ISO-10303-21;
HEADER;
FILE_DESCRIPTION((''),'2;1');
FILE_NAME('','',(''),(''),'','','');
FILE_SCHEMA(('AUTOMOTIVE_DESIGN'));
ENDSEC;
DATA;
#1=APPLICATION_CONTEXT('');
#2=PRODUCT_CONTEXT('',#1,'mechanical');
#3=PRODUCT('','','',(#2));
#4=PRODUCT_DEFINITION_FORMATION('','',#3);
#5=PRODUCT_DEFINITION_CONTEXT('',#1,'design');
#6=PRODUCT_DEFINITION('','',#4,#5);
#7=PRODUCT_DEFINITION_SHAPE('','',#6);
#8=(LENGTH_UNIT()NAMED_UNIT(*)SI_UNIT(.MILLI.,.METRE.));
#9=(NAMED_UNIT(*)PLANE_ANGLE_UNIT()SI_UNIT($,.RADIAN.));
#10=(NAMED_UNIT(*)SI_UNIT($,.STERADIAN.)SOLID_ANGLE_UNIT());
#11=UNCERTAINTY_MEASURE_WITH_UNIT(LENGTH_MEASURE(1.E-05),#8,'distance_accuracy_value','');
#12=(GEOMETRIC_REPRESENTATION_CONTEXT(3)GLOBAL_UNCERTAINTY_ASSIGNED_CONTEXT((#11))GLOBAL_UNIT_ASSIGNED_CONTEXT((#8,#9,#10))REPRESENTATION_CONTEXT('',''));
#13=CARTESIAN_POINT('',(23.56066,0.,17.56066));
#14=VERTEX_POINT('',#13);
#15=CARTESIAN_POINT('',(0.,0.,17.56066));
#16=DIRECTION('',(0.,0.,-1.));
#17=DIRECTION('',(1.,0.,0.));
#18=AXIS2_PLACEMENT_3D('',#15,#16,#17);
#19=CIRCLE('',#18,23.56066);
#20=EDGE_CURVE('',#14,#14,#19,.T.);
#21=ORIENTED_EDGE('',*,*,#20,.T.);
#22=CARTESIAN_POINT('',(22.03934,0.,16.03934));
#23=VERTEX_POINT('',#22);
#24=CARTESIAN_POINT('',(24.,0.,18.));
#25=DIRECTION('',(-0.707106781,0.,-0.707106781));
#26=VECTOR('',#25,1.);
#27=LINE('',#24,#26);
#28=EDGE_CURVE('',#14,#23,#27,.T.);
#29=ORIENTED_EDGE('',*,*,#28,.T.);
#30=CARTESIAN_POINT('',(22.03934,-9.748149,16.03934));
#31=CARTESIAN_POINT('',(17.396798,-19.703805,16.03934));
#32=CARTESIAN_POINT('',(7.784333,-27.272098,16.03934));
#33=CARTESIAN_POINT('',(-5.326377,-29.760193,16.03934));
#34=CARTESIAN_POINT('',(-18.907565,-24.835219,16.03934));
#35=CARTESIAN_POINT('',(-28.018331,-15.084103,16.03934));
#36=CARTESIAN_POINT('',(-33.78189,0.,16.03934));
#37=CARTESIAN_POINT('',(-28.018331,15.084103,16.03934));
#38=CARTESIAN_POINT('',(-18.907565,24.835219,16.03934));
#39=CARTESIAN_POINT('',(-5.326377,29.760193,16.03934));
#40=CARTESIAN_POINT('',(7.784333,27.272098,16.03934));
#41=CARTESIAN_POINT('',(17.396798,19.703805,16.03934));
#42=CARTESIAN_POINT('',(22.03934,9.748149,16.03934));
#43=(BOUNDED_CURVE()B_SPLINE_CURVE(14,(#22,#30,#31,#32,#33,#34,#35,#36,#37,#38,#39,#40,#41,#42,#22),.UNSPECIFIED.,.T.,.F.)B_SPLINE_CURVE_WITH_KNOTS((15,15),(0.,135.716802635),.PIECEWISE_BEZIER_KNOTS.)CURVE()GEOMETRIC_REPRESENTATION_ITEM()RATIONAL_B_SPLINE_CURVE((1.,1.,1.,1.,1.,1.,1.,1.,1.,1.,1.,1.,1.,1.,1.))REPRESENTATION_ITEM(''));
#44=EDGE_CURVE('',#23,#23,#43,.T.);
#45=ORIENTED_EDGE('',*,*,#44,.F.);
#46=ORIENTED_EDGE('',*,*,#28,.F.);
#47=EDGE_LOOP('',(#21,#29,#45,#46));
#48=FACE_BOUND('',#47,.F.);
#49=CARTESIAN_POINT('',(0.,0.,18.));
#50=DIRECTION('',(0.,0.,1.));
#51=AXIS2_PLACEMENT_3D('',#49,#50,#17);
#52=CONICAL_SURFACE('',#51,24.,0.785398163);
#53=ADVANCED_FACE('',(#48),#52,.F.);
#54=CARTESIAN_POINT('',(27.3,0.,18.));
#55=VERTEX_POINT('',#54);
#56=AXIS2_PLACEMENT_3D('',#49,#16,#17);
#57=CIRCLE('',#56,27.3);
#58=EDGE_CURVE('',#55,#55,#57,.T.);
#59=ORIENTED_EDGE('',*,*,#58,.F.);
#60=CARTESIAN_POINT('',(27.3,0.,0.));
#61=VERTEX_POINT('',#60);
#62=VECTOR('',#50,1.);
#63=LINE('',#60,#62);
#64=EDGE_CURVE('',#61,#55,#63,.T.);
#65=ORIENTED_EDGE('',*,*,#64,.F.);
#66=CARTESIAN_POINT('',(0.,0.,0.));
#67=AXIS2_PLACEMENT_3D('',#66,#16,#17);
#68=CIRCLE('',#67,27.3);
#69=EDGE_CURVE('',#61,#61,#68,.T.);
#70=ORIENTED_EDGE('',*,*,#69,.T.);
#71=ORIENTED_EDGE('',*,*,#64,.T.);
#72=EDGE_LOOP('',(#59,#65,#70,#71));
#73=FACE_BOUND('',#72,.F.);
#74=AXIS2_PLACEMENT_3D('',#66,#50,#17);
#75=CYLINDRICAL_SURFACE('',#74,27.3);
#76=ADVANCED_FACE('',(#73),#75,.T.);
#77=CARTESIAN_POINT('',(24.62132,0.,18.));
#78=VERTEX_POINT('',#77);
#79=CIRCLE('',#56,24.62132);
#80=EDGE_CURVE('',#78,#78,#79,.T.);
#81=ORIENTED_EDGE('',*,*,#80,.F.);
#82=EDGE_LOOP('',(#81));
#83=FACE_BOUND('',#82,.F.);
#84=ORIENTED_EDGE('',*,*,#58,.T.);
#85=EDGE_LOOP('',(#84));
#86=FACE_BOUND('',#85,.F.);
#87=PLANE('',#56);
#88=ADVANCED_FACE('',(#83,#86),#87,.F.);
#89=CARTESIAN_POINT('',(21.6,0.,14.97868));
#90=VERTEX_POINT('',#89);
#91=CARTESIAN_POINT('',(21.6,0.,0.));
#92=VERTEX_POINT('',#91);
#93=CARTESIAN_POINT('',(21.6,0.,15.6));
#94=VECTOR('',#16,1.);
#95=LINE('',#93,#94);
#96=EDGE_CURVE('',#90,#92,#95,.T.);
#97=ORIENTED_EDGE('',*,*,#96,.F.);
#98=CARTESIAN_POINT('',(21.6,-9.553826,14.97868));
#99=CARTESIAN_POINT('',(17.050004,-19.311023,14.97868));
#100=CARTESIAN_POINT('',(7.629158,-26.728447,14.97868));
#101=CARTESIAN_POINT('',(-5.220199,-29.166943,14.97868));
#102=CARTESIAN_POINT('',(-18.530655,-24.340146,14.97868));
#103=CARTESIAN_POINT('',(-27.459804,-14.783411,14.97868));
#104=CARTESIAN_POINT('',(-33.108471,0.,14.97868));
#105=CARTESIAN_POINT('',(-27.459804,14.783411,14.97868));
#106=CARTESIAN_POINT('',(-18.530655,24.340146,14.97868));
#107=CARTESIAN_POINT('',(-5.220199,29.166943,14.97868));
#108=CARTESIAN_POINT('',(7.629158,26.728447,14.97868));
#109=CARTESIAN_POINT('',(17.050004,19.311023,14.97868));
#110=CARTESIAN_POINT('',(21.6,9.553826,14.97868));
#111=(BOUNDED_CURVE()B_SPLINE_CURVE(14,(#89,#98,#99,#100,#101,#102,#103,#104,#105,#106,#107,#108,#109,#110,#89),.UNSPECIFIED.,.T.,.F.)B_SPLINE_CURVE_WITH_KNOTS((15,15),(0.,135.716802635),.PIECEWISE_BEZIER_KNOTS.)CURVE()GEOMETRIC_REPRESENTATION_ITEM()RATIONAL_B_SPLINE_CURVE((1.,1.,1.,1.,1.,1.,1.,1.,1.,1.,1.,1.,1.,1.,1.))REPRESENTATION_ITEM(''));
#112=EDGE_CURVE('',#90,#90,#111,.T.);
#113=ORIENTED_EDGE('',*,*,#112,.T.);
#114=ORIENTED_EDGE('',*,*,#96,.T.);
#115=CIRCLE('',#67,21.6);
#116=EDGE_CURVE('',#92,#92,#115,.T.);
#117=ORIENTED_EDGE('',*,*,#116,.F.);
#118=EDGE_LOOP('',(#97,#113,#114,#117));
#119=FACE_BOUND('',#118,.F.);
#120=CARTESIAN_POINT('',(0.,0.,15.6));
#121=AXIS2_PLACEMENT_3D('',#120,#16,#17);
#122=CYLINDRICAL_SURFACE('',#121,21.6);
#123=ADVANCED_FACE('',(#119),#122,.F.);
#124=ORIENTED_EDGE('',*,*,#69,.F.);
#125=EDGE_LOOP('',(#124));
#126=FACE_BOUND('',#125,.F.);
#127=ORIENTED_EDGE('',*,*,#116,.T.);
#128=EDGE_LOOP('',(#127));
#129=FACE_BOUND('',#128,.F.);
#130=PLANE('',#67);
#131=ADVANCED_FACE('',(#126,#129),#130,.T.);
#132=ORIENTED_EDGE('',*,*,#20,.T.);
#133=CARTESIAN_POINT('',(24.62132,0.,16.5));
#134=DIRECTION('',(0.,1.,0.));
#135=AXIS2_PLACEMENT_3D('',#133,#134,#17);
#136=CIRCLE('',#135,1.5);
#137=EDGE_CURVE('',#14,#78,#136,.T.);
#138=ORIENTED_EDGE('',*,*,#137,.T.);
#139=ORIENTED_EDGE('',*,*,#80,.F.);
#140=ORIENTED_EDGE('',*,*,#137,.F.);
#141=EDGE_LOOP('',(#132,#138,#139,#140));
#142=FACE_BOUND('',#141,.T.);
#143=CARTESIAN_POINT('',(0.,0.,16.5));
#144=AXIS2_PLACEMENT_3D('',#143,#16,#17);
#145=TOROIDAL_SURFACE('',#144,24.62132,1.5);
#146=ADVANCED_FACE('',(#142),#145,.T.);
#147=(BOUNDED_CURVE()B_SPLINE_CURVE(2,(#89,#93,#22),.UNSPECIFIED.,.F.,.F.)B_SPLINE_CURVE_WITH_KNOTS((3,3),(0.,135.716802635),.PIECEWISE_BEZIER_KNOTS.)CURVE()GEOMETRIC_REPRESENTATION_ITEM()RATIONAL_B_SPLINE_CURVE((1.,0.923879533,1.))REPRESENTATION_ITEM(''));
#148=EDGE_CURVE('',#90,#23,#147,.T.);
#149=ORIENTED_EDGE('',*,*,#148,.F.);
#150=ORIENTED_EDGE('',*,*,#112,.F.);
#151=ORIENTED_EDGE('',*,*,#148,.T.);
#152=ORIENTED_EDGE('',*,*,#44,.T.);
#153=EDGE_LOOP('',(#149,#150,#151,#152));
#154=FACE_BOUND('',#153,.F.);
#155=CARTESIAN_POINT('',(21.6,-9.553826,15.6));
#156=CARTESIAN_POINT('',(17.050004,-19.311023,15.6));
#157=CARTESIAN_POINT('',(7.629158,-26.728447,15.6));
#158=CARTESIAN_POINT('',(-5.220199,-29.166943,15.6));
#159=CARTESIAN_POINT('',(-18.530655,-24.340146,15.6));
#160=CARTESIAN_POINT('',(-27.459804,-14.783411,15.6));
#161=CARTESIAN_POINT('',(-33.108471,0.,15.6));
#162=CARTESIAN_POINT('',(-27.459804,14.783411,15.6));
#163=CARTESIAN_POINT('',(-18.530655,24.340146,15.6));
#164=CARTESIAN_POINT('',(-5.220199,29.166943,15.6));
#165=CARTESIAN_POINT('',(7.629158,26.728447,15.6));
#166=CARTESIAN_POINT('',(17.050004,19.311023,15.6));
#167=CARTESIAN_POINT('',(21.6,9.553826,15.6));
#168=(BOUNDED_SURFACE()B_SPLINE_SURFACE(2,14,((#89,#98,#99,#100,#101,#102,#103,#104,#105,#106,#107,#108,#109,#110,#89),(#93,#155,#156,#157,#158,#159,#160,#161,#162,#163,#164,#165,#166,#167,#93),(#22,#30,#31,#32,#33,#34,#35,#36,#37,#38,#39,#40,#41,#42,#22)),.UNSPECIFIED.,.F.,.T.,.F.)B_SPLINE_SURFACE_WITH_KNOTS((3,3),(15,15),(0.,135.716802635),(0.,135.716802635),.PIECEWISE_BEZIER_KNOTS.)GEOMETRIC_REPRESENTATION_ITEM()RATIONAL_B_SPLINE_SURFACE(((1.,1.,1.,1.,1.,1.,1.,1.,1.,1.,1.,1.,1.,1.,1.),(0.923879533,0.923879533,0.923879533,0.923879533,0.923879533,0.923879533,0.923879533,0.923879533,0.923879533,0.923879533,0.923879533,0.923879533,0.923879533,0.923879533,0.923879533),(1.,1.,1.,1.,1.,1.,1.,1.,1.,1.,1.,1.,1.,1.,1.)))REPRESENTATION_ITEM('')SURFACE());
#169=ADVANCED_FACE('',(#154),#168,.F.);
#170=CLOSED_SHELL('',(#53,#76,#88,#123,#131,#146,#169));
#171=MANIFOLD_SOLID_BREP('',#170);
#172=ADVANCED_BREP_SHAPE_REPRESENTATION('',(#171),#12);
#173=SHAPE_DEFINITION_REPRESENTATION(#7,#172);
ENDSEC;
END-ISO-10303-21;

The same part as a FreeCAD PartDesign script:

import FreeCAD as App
import Part
import Sketcher
from FreeCAD import Vector
Q = App.Units.Quantity


def edges_at(feature, points):
    """Names of the edges that pass closest to the given points."""
    edges = feature.Shape.Edges
    near = lambda p: min(range(len(edges)), key=lambda i: edges[i].distToShape(Part.Vertex(*p))[0])
    return sorted({f"Edge{near(p) + 1}" for p in points})

doc = App.newDocument("Part")
body = doc.addObject("PartDesign::Body", "Body")

sketch1 = body.newObject("Sketcher::SketchObject", "Sketch")
sketch1.AttachmentSupport = (doc.getObject("XZ_Plane"), [""])
sketch1.MapMode = "FlatFace"
sketch1.addGeometry(Part.LineSegment(Vector(21.6, 15.6, 0), Vector(21.6, 0, 0)), False)
sketch1.addGeometry(Part.LineSegment(Vector(21.6, 0, 0), Vector(27.3, 0, 0)), False)
sketch1.addGeometry(Part.LineSegment(Vector(27.3, 0, 0), Vector(27.3, 18, 0)), False)
sketch1.addGeometry(Part.LineSegment(Vector(27.3, 18, 0), Vector(24, 18, 0)), False)
sketch1.addGeometry(Part.LineSegment(Vector(24, 18, 0), Vector(21.6, 15.6, 0)), False)
sketch1.addConstraint(Sketcher.Constraint("Coincident", 0, 2, 1, 1))
sketch1.addConstraint(Sketcher.Constraint("Coincident", 1, 2, 2, 1))
sketch1.addConstraint(Sketcher.Constraint("Coincident", 2, 2, 3, 1))
sketch1.addConstraint(Sketcher.Constraint("Coincident", 3, 2, 4, 1))
sketch1.addConstraint(Sketcher.Constraint("Coincident", 4, 2, 0, 1))
sketch1.addConstraint(Sketcher.Constraint("Vertical", 0))
sketch1.addConstraint(Sketcher.Constraint("Horizontal", 1))
sketch1.addConstraint(Sketcher.Constraint("Vertical", 2))
sketch1.addConstraint(Sketcher.Constraint("Horizontal", 3))
sketch1.addConstraint(Sketcher.Constraint("PointOnObject", 0, 2, -1))
sketch1.addConstraint(Sketcher.Constraint("DistanceY", 2, 1, 2, 2, 18.0))
sketch1.addConstraint(Sketcher.Constraint("Angle", 4, Q("-135 deg")))
sketch1.addConstraint(Sketcher.Constraint("DistanceX", 1, 1, 1, 2, 5.7))
sketch1.addConstraint(Sketcher.Constraint("DistanceX", 3, 2, 3, 1, 3.3))
sketch1.addConstraint(Sketcher.Constraint("DistanceX", -1, 1, 3, 2, 24.0))
revolution = body.newObject("PartDesign::Revolution", "Revolution")
revolution.Profile = sketch1
revolution.ReferenceAxis = (sketch1, ["V_Axis"])
revolution.Angle = 360
doc.recompute()

fillet = body.newObject("PartDesign::Fillet", "Fillet")
fillet.Base = (revolution, edges_at(revolution, [(-21.6, 0, 15.6)]))
fillet.Radius = 1.5
doc.recompute()

fillet2 = body.newObject("PartDesign::Fillet", "Fillet001")
fillet2.Base = (fillet, edges_at(fillet, [(-24, 0, 18)]))
fillet2.Radius = 1.5

doc.recompute()
